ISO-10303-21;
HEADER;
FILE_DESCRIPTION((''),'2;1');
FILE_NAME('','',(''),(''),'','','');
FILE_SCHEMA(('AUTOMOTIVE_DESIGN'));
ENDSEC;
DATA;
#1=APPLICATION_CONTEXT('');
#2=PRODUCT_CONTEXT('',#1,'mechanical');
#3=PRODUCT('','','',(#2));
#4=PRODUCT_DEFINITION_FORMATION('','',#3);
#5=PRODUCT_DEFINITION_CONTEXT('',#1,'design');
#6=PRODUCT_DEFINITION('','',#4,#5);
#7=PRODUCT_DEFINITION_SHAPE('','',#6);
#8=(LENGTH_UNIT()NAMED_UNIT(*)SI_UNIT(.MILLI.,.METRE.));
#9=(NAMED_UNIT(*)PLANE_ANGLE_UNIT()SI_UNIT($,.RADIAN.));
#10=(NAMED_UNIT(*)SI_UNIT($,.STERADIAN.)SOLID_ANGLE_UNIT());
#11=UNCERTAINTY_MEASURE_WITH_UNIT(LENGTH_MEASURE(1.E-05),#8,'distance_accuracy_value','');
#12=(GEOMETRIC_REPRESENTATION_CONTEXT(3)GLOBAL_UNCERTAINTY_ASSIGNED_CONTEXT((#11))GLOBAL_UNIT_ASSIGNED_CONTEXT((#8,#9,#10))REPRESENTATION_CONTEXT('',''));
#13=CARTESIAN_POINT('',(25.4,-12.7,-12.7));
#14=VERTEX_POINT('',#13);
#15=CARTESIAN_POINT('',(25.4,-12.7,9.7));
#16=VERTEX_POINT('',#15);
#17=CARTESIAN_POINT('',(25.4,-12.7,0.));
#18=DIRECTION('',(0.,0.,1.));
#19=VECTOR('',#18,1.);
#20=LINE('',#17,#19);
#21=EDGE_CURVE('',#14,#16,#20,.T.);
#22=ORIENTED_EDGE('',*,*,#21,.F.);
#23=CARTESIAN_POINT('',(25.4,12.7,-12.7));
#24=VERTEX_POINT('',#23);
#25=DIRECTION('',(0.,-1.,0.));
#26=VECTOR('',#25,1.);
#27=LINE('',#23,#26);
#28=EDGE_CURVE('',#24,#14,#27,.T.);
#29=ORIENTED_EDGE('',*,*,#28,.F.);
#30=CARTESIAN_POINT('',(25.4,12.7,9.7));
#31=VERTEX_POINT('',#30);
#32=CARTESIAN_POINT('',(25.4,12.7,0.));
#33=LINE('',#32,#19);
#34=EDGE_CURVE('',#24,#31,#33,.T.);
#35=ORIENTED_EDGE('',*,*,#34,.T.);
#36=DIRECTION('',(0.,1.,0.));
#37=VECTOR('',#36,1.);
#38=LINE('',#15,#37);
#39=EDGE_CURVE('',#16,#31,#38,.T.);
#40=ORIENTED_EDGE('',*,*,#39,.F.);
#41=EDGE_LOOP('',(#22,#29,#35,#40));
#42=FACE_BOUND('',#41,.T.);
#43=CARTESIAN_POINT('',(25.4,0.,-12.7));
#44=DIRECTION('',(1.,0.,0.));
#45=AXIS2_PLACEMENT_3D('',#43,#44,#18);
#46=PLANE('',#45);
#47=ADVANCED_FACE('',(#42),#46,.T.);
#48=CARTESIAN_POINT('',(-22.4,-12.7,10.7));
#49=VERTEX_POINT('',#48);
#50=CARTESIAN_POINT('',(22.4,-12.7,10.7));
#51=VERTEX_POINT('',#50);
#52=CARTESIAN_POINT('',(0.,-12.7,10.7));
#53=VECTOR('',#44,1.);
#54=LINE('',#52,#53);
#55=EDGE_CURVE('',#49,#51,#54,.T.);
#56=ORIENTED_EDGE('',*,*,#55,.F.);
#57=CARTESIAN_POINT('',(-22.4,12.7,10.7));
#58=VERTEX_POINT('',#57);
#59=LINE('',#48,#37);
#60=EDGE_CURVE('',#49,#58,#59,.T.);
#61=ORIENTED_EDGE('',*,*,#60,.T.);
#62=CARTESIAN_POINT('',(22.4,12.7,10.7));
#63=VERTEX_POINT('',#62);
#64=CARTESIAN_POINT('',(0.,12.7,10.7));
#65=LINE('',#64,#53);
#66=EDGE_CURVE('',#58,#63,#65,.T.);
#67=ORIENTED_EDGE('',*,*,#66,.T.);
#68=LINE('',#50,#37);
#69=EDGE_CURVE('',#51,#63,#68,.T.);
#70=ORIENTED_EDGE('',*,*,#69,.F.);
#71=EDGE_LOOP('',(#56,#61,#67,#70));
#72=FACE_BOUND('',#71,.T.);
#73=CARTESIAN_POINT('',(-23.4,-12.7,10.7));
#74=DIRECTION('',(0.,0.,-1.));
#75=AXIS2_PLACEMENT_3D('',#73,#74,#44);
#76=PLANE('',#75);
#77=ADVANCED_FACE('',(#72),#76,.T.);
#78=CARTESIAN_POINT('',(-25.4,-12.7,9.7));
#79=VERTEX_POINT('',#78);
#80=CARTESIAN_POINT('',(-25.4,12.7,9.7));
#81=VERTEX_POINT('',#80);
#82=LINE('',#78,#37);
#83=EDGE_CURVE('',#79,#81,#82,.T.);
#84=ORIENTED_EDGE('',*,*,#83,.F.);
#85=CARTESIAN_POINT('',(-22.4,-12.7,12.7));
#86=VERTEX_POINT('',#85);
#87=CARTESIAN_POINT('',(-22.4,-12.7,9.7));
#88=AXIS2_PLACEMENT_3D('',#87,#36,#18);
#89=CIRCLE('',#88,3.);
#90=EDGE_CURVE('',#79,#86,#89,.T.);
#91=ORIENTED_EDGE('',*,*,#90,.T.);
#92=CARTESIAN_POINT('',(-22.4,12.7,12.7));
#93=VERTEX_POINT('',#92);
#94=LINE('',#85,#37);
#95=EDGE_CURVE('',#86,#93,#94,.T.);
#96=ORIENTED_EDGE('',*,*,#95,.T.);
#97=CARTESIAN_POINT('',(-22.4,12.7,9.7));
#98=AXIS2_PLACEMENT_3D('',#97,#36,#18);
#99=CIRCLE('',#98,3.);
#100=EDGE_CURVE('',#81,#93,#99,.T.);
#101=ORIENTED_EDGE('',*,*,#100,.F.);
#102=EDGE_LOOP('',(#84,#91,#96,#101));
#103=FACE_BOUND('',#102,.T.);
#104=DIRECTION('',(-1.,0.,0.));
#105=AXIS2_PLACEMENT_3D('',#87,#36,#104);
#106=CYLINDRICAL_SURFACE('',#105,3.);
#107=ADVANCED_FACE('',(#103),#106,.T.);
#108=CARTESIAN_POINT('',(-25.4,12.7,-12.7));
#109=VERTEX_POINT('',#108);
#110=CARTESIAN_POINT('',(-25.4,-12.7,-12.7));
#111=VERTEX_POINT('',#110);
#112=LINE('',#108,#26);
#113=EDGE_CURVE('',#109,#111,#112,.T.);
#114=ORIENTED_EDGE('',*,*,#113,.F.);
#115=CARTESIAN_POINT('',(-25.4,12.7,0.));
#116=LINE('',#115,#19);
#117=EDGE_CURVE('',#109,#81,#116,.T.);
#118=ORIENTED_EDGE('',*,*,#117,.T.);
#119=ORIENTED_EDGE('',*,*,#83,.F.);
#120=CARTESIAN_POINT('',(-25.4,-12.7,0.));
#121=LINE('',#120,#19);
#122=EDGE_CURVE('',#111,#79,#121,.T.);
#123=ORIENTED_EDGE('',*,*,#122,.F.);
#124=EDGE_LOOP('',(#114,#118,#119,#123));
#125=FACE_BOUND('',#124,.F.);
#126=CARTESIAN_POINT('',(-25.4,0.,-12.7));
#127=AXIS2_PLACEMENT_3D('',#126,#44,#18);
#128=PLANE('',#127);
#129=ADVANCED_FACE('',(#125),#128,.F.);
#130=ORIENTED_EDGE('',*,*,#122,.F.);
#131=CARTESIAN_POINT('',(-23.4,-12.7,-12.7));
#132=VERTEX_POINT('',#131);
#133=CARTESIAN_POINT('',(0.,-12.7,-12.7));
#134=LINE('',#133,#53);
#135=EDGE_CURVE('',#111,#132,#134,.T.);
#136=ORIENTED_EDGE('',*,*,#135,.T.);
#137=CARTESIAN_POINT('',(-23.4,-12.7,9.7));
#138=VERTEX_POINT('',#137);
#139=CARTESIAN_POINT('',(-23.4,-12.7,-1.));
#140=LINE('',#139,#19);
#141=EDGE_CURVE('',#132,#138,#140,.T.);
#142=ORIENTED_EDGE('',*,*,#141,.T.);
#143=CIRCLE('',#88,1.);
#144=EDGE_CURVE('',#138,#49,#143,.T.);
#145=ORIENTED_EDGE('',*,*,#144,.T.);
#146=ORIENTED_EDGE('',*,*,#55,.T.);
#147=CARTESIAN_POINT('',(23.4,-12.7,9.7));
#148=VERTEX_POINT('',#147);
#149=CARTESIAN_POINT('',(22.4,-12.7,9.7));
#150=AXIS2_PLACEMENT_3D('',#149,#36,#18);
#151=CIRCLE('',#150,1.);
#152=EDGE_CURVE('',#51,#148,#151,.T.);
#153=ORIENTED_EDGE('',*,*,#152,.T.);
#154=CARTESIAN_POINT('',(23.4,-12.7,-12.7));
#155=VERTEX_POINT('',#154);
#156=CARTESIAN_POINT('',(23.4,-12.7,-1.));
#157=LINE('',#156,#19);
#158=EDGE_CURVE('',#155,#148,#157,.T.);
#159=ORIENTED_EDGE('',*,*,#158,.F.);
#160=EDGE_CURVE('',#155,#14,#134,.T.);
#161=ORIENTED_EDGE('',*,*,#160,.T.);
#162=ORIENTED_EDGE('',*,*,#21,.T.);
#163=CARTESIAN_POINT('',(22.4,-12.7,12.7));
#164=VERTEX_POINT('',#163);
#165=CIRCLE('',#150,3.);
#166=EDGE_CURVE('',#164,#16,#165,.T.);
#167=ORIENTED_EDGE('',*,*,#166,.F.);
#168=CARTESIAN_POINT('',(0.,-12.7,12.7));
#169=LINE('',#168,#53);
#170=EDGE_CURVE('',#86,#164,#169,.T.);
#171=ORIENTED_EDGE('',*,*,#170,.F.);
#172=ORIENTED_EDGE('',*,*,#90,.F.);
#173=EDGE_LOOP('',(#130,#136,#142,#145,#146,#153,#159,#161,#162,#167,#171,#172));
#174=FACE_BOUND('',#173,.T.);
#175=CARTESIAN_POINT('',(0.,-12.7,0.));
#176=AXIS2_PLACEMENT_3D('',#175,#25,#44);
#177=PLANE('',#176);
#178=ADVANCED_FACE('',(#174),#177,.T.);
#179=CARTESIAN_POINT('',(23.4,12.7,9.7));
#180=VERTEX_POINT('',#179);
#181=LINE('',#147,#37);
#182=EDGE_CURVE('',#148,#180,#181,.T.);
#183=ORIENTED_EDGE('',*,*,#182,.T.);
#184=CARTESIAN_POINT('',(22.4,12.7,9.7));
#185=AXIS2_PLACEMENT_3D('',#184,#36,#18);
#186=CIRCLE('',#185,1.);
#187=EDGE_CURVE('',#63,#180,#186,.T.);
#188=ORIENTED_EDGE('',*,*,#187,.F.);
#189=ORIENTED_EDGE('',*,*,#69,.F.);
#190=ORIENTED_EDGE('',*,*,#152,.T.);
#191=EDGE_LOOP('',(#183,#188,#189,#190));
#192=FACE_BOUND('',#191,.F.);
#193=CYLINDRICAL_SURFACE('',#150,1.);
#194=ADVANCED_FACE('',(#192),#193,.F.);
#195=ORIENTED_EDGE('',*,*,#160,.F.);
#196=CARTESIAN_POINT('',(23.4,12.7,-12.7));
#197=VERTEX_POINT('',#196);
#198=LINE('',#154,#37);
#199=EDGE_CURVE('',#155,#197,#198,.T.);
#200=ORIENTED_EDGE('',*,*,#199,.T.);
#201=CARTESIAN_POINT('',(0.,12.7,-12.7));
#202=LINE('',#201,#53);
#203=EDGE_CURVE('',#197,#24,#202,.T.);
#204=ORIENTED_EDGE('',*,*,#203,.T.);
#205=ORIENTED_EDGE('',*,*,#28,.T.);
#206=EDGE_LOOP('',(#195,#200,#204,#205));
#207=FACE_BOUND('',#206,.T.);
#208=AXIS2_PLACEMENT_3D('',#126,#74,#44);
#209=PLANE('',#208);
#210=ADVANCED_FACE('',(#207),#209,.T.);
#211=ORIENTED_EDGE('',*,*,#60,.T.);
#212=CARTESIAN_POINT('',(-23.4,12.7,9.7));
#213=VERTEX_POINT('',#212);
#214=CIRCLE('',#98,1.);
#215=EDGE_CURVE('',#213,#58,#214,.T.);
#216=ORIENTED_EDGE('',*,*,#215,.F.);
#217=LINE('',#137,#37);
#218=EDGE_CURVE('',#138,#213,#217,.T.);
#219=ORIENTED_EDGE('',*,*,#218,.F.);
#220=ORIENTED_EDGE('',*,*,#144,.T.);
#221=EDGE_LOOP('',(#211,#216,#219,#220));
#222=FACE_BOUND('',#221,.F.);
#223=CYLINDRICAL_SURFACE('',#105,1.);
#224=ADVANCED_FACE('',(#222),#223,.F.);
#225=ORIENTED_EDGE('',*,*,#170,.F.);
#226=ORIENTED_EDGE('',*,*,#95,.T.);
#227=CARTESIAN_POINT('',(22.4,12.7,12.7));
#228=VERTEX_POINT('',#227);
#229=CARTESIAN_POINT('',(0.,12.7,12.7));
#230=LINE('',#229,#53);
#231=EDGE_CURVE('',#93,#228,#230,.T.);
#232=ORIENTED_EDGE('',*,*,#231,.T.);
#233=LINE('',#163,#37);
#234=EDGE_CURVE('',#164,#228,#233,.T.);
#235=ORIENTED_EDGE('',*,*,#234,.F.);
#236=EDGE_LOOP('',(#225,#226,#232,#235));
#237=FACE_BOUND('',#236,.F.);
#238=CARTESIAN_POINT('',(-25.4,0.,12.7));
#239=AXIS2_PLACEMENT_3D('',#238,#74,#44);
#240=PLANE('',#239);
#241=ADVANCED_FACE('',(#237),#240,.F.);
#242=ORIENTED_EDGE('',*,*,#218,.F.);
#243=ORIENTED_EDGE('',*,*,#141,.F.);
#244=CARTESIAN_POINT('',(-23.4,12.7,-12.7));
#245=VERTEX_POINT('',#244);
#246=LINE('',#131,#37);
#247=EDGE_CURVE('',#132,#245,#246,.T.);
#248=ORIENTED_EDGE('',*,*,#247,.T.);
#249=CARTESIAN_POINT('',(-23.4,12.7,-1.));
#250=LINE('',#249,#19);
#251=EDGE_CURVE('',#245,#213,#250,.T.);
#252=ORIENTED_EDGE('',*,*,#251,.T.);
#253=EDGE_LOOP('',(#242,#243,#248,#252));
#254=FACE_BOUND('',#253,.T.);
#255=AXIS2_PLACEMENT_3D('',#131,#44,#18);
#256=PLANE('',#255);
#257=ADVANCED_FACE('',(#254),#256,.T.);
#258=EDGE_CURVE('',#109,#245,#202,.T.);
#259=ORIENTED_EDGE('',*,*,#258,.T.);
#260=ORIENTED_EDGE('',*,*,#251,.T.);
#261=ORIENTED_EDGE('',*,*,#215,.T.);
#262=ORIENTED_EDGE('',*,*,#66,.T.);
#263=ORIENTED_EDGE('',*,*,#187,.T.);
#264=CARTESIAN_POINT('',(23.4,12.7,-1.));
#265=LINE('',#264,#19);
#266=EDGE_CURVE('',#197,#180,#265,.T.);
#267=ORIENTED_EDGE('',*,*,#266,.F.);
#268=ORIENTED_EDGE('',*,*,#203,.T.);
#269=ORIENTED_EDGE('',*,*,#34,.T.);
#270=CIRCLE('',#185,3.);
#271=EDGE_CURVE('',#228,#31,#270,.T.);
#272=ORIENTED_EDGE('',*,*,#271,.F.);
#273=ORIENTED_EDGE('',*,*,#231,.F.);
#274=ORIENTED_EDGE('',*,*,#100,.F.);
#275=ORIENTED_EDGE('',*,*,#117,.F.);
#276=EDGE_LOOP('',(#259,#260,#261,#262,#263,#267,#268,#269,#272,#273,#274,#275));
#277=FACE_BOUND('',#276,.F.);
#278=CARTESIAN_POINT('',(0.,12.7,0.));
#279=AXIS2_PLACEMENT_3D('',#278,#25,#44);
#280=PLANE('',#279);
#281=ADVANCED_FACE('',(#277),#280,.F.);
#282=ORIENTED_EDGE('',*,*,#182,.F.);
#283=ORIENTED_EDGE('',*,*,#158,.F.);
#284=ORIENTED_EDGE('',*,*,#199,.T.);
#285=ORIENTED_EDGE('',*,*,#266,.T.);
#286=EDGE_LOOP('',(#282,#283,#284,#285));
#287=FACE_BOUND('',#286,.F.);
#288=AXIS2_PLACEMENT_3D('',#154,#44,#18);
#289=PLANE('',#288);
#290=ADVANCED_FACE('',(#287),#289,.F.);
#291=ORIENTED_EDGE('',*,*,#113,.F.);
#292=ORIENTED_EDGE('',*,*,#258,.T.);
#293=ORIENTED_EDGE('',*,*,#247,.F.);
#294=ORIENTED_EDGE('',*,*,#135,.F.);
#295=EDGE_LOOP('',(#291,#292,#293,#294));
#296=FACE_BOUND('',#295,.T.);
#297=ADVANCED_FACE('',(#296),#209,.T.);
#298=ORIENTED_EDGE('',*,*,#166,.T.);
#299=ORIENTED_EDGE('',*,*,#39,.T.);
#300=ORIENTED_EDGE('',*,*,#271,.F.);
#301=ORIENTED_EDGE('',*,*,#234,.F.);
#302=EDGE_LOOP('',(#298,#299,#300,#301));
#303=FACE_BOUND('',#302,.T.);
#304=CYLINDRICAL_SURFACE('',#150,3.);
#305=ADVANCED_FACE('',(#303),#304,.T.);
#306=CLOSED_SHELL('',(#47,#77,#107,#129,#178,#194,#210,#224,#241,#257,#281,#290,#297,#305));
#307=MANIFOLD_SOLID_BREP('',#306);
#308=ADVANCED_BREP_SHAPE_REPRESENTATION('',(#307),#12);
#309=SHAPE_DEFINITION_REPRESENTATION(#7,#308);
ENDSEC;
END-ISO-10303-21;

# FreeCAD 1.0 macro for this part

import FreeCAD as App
import Part
import Sketcher
from FreeCAD import Vector
Q = App.Units.Quantity


def edges_at(feature, points):
    """Names of the edges that pass closest to the given points."""
    edges = feature.Shape.Edges
    near = lambda p: min(range(len(edges)), key=lambda i: edges[i].distToShape(Part.Vertex(*p))[0])
    return sorted({f"Edge{near(p) + 1}" for p in points})


def add_polygon(sketch, points):
    """Adds a closed chain of lines whose ends are joined by coincident constraints."""
    first, n = sketch.GeometryCount, len(points)
    for a, b in zip(points, points[1:] + points[:1]):
        sketch.addGeometry(Part.LineSegment(App.Vector(*a, 0), App.Vector(*b, 0)), False)
    for i in range(n):
        sketch.addConstraint(Sketcher.Constraint("Coincident", first + i, 2, first + (i + 1) % n, 1))

doc = App.newDocument("Part")
params = doc.addObject("Spreadsheet::Sheet", "Params")
for row, (alias, value) in enumerate([
    ("sketch1_width", "50.8 mm"),
    ("sketch1_height", "25.4 mm"),
    ("pad1_length", "25.4 mm"),
    ("sketch2_width", "46.8 mm"),
    ("sketch2_height", "23.4 mm"),
    ("fillet_radius", "3 mm"),
    ("fillet2_radius", "1 mm"),
], start=1):
    params.set(f"A{row}", alias)
    params.set(f"B{row}", "=" + value)
    params.setAlias(f"B{row}", alias)

body = doc.addObject("PartDesign::Body", "Body")

# Sketch on XZ plane
sketch1 = body.newObject("Sketcher::SketchObject", "Sketch")
sketch1.AttachmentSupport = (doc.getObject("XZ_Plane"), [""])
sketch1.MapMode = "FlatFace"
add_polygon(sketch1, [(-25, 13), (-25, -13), (25, -13), (25, 13)])  # lines 0-3
sketch1.addConstraint([
    Sketcher.Constraint("Vertical", 0),
    Sketcher.Constraint("Horizontal", 1),
    Sketcher.Constraint("Vertical", 2),
    Sketcher.Constraint("Horizontal", 3),
    Sketcher.Constraint("Symmetric", 0, 2, 2, 2, -1, 1),
    Sketcher.Constraint("DistanceX", 1, 1, 1, 2, Q("50.8 mm")),
    Sketcher.Constraint("DistanceY", 0, 2, 0, 1, Q("25.4 mm")),
])
sketch1.setExpression("Constraints[9]", "Params.sketch1_width")
sketch1.setExpression("Constraints[10]", "Params.sketch1_height")
pad1 = body.newObject("PartDesign::Pad", "Pad")
pad1.Profile = sketch1
pad1.setExpression("Length", "Params.pad1_length")
pad1.Midplane = True

# Sketch on XZ plane
sketch2 = body.newObject("Sketcher::SketchObject", "Sketch001")
sketch2.AttachmentSupport = (doc.getObject("XZ_Plane"), [""])
sketch2.MapMode = "FlatFace"
sketch2.AttachmentOffset = App.Placement(Vector(0, 0, 12.7), App.Rotation())
add_polygon(sketch2, [(-23, 11), (-23, -13), (23, -13), (23, 11)])  # lines 0-3
sketch2.addConstraint([
    Sketcher.Constraint("Vertical", 0),
    Sketcher.Constraint("Horizontal", 1),
    Sketcher.Constraint("Vertical", 2),
    Sketcher.Constraint("Horizontal", 3),
    Sketcher.Constraint("DistanceX", 1, 1, 1, 2, Q("46.8 mm")),
    Sketcher.Constraint("DistanceY", 0, 2, 0, 1, Q("23.4 mm")),
    Sketcher.Constraint("DistanceX", 0, 2, -1, 1, Q("23.4 mm")),
    Sketcher.Constraint("DistanceY", 0, 2, -1, 1, Q("12.7 mm")),
])
sketch2.setExpression("Constraints[8]", "Params.sketch2_width")
sketch2.setExpression("Constraints[9]", "Params.sketch2_height")
pocket1 = body.newObject("PartDesign::Pocket", "Pocket")
pocket1.Profile = sketch2
pocket1.Type = "ThroughAll"
doc.recompute()

fillet = body.newObject("PartDesign::Fillet", "Fillet")
fillet.Base = (pocket1, edges_at(pocket1, [(-25.4, 0, 12.7), (25.4, 0, 12.7)]))
fillet.setExpression("Radius", "Params.fillet_radius")
doc.recompute()

fillet2 = body.newObject("PartDesign::Fillet", "Fillet001")
fillet2.Base = (fillet, edges_at(fillet, [(-23.4, 0, 10.7), (23.4, 0, 10.7)]))
fillet2.setExpression("Radius", "Params.fillet2_radius")

doc.recompute()
